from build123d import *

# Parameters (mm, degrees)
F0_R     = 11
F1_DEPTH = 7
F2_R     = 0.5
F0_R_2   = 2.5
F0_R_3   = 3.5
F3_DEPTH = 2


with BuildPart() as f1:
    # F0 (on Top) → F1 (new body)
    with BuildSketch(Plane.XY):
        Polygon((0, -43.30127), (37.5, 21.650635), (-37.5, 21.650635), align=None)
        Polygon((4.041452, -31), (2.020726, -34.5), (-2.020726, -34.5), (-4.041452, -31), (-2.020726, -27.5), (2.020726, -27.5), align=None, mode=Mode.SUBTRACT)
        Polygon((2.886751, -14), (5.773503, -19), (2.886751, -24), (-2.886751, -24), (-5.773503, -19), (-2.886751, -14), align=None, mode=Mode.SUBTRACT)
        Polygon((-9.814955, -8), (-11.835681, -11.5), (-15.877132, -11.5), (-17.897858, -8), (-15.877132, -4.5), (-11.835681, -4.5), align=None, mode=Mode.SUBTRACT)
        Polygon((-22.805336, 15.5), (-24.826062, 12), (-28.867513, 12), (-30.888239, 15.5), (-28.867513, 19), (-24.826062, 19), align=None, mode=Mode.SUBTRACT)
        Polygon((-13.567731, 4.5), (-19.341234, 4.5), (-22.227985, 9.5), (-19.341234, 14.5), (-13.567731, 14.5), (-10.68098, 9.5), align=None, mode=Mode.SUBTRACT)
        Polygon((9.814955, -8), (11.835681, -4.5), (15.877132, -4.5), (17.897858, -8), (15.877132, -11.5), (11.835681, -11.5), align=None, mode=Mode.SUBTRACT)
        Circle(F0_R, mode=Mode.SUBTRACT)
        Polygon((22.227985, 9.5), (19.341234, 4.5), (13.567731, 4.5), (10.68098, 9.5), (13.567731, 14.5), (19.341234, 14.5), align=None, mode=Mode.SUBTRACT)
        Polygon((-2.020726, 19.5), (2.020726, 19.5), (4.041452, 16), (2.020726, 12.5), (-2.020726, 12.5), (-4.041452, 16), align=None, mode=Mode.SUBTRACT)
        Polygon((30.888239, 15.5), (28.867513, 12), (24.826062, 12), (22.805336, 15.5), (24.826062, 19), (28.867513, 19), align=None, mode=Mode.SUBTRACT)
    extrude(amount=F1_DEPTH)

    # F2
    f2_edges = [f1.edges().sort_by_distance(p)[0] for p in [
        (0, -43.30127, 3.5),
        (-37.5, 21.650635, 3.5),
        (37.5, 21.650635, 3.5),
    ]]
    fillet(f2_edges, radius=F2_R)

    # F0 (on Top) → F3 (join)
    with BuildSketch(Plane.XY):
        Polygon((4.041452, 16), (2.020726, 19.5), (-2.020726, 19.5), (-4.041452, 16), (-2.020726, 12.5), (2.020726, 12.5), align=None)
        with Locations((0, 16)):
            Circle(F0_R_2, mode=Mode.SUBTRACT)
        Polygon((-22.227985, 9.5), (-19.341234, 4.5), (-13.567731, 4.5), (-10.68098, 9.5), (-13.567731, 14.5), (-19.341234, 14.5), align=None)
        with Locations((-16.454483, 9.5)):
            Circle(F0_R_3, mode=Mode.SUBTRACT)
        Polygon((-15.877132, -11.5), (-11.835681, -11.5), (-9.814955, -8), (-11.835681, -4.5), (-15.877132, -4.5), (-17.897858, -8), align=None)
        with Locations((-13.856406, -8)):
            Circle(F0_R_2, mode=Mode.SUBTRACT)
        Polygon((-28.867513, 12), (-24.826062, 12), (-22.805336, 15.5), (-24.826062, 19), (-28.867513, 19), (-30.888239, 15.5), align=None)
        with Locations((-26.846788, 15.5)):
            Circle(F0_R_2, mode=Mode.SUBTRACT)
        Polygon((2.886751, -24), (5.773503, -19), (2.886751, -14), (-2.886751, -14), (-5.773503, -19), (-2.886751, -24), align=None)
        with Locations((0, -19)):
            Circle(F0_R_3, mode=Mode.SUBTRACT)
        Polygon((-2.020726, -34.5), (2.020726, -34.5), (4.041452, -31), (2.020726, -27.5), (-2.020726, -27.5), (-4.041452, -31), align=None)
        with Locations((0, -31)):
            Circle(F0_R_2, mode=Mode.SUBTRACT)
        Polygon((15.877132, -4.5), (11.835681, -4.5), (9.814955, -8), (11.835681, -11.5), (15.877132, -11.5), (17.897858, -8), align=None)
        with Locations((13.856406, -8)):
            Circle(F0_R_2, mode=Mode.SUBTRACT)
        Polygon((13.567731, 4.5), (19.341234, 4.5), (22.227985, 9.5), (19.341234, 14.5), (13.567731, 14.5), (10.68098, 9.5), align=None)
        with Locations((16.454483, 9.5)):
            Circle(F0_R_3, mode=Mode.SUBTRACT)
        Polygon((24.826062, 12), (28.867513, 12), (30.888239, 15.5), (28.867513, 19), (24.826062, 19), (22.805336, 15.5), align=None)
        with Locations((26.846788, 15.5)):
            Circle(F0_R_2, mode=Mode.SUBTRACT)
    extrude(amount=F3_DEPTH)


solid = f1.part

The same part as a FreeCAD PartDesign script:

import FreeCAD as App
import Part
import Sketcher
Q = App.Units.Quantity


def edges_at(feature, points):
    """Names of the edges that pass closest to the given points."""
    edges = feature.Shape.Edges
    near = lambda p: min(range(len(edges)), key=lambda i: edges[i].distToShape(Part.Vertex(*p))[0])
    return sorted({f"Edge{near(p) + 1}" for p in points})


def add_polygon(sketch, points):
    """Adds a closed chain of lines whose ends are joined by coincident constraints."""
    first, n = sketch.GeometryCount, len(points)
    for a, b in zip(points, points[1:] + points[:1]):
        sketch.addGeometry(Part.LineSegment(App.Vector(*a, 0), App.Vector(*b, 0)), False)
    for i in range(n):
        sketch.addConstraint(Sketcher.Constraint("Coincident", first + i, 2, first + (i + 1) % n, 1))

doc = App.newDocument("Part")
body = doc.addObject("PartDesign::Body", "Body")

# Sketch on XY plane
sketch1 = body.newObject("Sketcher::SketchObject", "Sketch")
sketch1.AttachmentSupport = (doc.getObject("XY_Plane"), [""])
sketch1.MapMode = "FlatFace"
add_polygon(sketch1, [(0, -43.30127), (37.5, 21.650635), (-37.5, 21.650635)])  # lines 0-2
add_polygon(sketch1, [(-11.835681, -4.5), (-9.814955, -8), (-11.835681, -11.5), (-15.877132, -11.5), (-17.897858, -8), (-15.877132, -4.5)])  # lines 3-8
add_polygon(sketch1, [(2.020726, -27.5), (4.041452, -31), (2.020726, -34.5), (-2.020726, -34.5), (-4.041452, -31), (-2.020726, -27.5)])  # lines 9-14
add_polygon(sketch1, [(-2.886751, -14), (2.886751, -14), (5.773503, -19), (2.886751, -24), (-2.886751, -24), (-5.773503, -19)])  # lines 15-20
add_polygon(sketch1, [(11.835681, -11.5), (9.814955, -8), (11.835681, -4.5), (15.877132, -4.5), (17.897858, -8), (15.877132, -11.5)])  # lines 21-26
add_polygon(sketch1, [(-10.68098, 9.5), (-13.567731, 4.5), (-19.341234, 4.5), (-22.227985, 9.5), (-19.341234, 14.5), (-13.567731, 14.5)])  # lines 27-32
add_polygon(sketch1, [(-24.826062, 19), (-22.805336, 15.5), (-24.826062, 12), (-28.867513, 12), (-30.888239, 15.5), (-28.867513, 19)])  # lines 33-38
sketch1.addGeometry(Part.Circle(App.Vector(0, 0, 0), App.Vector(0, 0, 1), 11), False)  # 39
add_polygon(sketch1, [(-4.041452, 16), (-2.020726, 19.5), (2.020726, 19.5), (4.041452, 16), (2.020726, 12.5), (-2.020726, 12.5)])  # lines 40-45
add_polygon(sketch1, [(19.341234, 14.5), (22.227985, 9.5), (19.341234, 4.5), (13.567731, 4.5), (10.68098, 9.5), (13.567731, 14.5)])  # lines 46-51
add_polygon(sketch1, [(28.867513, 19), (30.888239, 15.5), (28.867513, 12), (24.826062, 12), (22.805336, 15.5), (24.826062, 19)])  # lines 52-57
sketch1.addConstraint([
    Sketcher.Constraint("Horizontal", 1),
    Sketcher.Constraint("Horizontal", 5),
    Sketcher.Constraint("Horizontal", 8),
    Sketcher.Constraint("Horizontal", 11),
    Sketcher.Constraint("Horizontal", 14),
    Sketcher.Constraint("Horizontal", 15),
    Sketcher.Constraint("Horizontal", 18),
    Sketcher.Constraint("Horizontal", 23),
    Sketcher.Constraint("Horizontal", 26),
    Sketcher.Constraint("Horizontal", 28),
    Sketcher.Constraint("Horizontal", 31),
    Sketcher.Constraint("Horizontal", 35),
    Sketcher.Constraint("Horizontal", 38),
    Sketcher.Constraint("Horizontal", 41),
    Sketcher.Constraint("Horizontal", 44),
    Sketcher.Constraint("Horizontal", 48),
    Sketcher.Constraint("Horizontal", 51),
    Sketcher.Constraint("Horizontal", 54),
    Sketcher.Constraint("Horizontal", 57),
    Sketcher.Constraint("Coincident", 39, 3, -1, 1),
    Sketcher.Constraint("Symmetric", 9, 2, 12, 2, -2),
    Sketcher.Constraint("Symmetric", 16, 2, 19, 2, -2),
    Sketcher.Constraint("Symmetric", 3, 2, 21, 2, -2),
    Sketcher.Constraint("Symmetric", 8, 2, 22, 2, -2),
    Sketcher.Constraint("Symmetric", 6, 2, 24, 2, -2),
    Sketcher.Constraint("Symmetric", 5, 2, 25, 2, -2),
    Sketcher.Constraint("Symmetric", 42, 2, 45, 2, -2),
    Sketcher.Constraint("Symmetric", 29, 2, 46, 2, -2),
    Sketcher.Constraint("Symmetric", 28, 2, 47, 2, -2),
    Sketcher.Constraint("Symmetric", 32, 2, 49, 2, -2),
    Sketcher.Constraint("Symmetric", 31, 2, 50, 2, -2),
    Sketcher.Constraint("Symmetric", 36, 2, 52, 2, -2),
    Sketcher.Constraint("Symmetric", 35, 2, 53, 2, -2),
    Sketcher.Constraint("Symmetric", 33, 2, 55, 2, -2),
    Sketcher.Constraint("Symmetric", 38, 2, 56, 2, -2),
    Sketcher.Constraint("PointOnObject", 2, 2, -2),
    Sketcher.Constraint("Parallel", 2, 3),
    Sketcher.Constraint("Parallel", 0, 4),
    Sketcher.Constraint("Parallel", 3, 6),
    Sketcher.Constraint("Parallel", 4, 7),
    Sketcher.Constraint("Parallel", 6, 9),
    Sketcher.Constraint("Parallel", 7, 10),
    Sketcher.Constraint("Parallel", 9, 12),
    Sketcher.Constraint("Parallel", 10, 13),
    Sketcher.Constraint("Parallel", 12, 16),
    Sketcher.Constraint("Parallel", 13, 17),
    Sketcher.Constraint("Parallel", 16, 19),
    Sketcher.Constraint("Parallel", 17, 20),
    Sketcher.Constraint("Parallel", 19, 21),
    Sketcher.Constraint("Parallel", 20, 22),
    Sketcher.Constraint("Parallel", 21, 24),
    Sketcher.Constraint("Parallel", 25, 27),
    Sketcher.Constraint("Parallel", 24, 29),
    Sketcher.Constraint("Parallel", 27, 30),
    Sketcher.Constraint("Parallel", 29, 32),
    Sketcher.Constraint("Parallel", 32, 33),
    Sketcher.Constraint("Parallel", 30, 34),
    Sketcher.Constraint("Parallel", 33, 36),
    Sketcher.Constraint("Parallel", 34, 37),
    Sketcher.Constraint("Parallel", 37, 40),
    Sketcher.Constraint("Parallel", 36, 42),
    Sketcher.Constraint("Parallel", 40, 43),
    Sketcher.Constraint("Parallel", 42, 45),
    Sketcher.Constraint("Parallel", 45, 46),
    Sketcher.Constraint("Parallel", 46, 49),
    Sketcher.Constraint("Parallel", 49, 52),
    Sketcher.Constraint("Parallel", 52, 55),
    Sketcher.Constraint("Horizontal", 3, 2, 6, 2),
    Sketcher.Constraint("Horizontal", 29, 2, 32, 2),
    Sketcher.Constraint("Horizontal", 33, 2, 36, 2),
    Sketcher.Constraint("Vertical", 5, 2, 7, 2),
    Sketcher.Constraint("Vertical", 11, 2, 13, 2),
    Sketcher.Constraint("Vertical", 15, 2, 17, 2),
    Sketcher.Constraint("Vertical", 28, 2, 30, 2),
    Sketcher.Constraint("Vertical", 35, 2, 37, 2),
    Sketcher.Constraint("Vertical", 13, 2, 40, 2),
    Sketcher.Constraint("Vertical", 9, 2, 42, 2),
    Sketcher.Constraint("Vertical", 41, 2, 43, 2),
    Sketcher.Constraint("Equal", 8, 11),
    Sketcher.Constraint("Equal", 18, 28),
    Sketcher.Constraint("Equal", 26, 35),
    Sketcher.Constraint("Equal", 7, 9),
    Sketcher.Constraint("Equal", 20, 27),
    Sketcher.Constraint("Equal", 25, 33),
    Sketcher.Constraint("Diameter", 39, Q("22 mm")),
    Sketcher.Constraint("DistanceX", 1, 2, 1, 1, Q("75 mm")),
    Sketcher.Constraint("Angle", 0, Q("60 deg")),
    Sketcher.Constraint("DistanceY", 3, 2, -1, 1, Q("8 mm")),
    Sketcher.Constraint("DistanceY", 9, 2, -1, 1, Q("31 mm")),
    Sketcher.Constraint("DistanceY", 15, 2, -1, 1, Q("14 mm")),
    Sketcher.Constraint("DistanceY", 16, 2, -1, 1, Q("19 mm")),
    Sketcher.Constraint("DistanceY", -1, 1, 34, 2, Q("12 mm")),
    Sketcher.Constraint("DistanceY", -1, 1, 37, 2, Q("19 mm")),
    Sketcher.Constraint("DistanceY", -1, 1, 42, 2, Q("16 mm")),
    Sketcher.Constraint("DistanceY", 8, 2, 27, 2, Q("9 mm")),
    Sketcher.Constraint("DistanceX", 15, 1, 15, 2, Q("5.773502 mm")),
    Sketcher.Constraint("DistanceX", 5, 2, 5, 1, Q("4.041451 mm")),
    Sketcher.Constraint("DistanceX", 7, 2, 27, 2, Q("2.309401 mm")),
    Sketcher.Constraint("DistanceY", 2, 2, -1, 1, Q("43.30127 mm")),
    Sketcher.Constraint("DistanceX", 4, 2, -1, 1, Q("11.835681 mm")),
    Sketcher.Constraint("DistanceX", 36, 2, -1, 1, Q("30.888239 mm")),
])
pad1 = body.newObject("PartDesign::Pad", "Pad")
pad1.Profile = sketch1
pad1.Length = 7
doc.recompute()

fillet = body.newObject("PartDesign::Fillet", "Fillet")
fillet.Base = (pad1, edges_at(pad1, [(0, -43.301, 3.5), (-37.5, 21.651, 3.5), (37.5, 21.651, 3.5)]))
fillet.Radius = 0.5

# Sketch on XY plane
sketch2 = body.newObject("Sketcher::SketchObject", "Sketch001")
sketch2.AttachmentSupport = (doc.getObject("XY_Plane"), [""])
sketch2.MapMode = "FlatFace"
add_polygon(sketch2, [(4.041452, 16), (2.020726, 19.5), (-2.020726, 19.5), (-4.041452, 16), (-2.020726, 12.5), (2.020726, 12.5)])  # lines 0-5
sketch2.addGeometry(Part.Circle(App.Vector(0, 16, 0), App.Vector(0, 0, 1), 2.5), False)  # 6
add_polygon(sketch2, [(-22.227985, 9.5), (-19.341234, 4.5), (-13.567731, 4.5), (-10.68098, 9.5), (-13.567731, 14.5), (-19.341234, 14.5)])  # lines 7-12
sketch2.addGeometry(Part.Circle(App.Vector(-16.454483, 9.5, 0), App.Vector(0, 0, 1), 3.5), False)  # 13
add_polygon(sketch2, [(-15.877132, -11.5), (-11.835681, -11.5), (-9.814955, -8), (-11.835681, -4.5), (-15.877132, -4.5), (-17.897858, -8)])  # lines 14-19
sketch2.addGeometry(Part.Circle(App.Vector(-13.856406, -8, 0), App.Vector(0, 0, 1), 2.5), False)  # 20
add_polygon(sketch2, [(-28.867513, 12), (-24.826062, 12), (-22.805336, 15.5), (-24.826062, 19), (-28.867513, 19), (-30.888239, 15.5)])  # lines 21-26
sketch2.addGeometry(Part.Circle(App.Vector(-26.846788, 15.5, 0), App.Vector(0, 0, 1), 2.5), False)  # 27
add_polygon(sketch2, [(2.886751, -24), (5.773503, -19), (2.886751, -14), (-2.886751, -14), (-5.773503, -19), (-2.886751, -24)])  # lines 28-33
sketch2.addGeometry(Part.Circle(App.Vector(0, -19, 0), App.Vector(0, 0, 1), 3.5), False)  # 34
add_polygon(sketch2, [(-2.020726, -34.5), (2.020726, -34.5), (4.041452, -31), (2.020726, -27.5), (-2.020726, -27.5), (-4.041452, -31)])  # lines 35-40
sketch2.addGeometry(Part.Circle(App.Vector(0, -31, 0), App.Vector(0, 0, 1), 2.5), False)  # 41
add_polygon(sketch2, [(15.877132, -4.5), (11.835681, -4.5), (9.814955, -8), (11.835681, -11.5), (15.877132, -11.5), (17.897858, -8)])  # lines 42-47
sketch2.addGeometry(Part.Circle(App.Vector(13.856406, -8, 0), App.Vector(0, 0, 1), 2.5), False)  # 48
add_polygon(sketch2, [(13.567731, 4.5), (19.341234, 4.5), (22.227985, 9.5), (19.341234, 14.5), (13.567731, 14.5), (10.68098, 9.5)])  # lines 49-54
sketch2.addGeometry(Part.Circle(App.Vector(16.454483, 9.5, 0), App.Vector(0, 0, 1), 3.5), False)  # 55
add_polygon(sketch2, [(24.826062, 12), (28.867513, 12), (30.888239, 15.5), (28.867513, 19), (24.826062, 19), (22.805336, 15.5)])  # lines 56-61
sketch2.addGeometry(Part.Circle(App.Vector(26.846788, 15.5, 0), App.Vector(0, 0, 1), 2.5), False)  # 62
sketch2.addConstraint([
    Sketcher.Constraint("Horizontal", 1),
    Sketcher.Constraint("Horizontal", 4),
    Sketcher.Constraint("Horizontal", 8),
    Sketcher.Constraint("Horizontal", 11),
    Sketcher.Constraint("Horizontal", 14),
    Sketcher.Constraint("Horizontal", 17),
    Sketcher.Constraint("Horizontal", 21),
    Sketcher.Constraint("Horizontal", 24),
    Sketcher.Constraint("Horizontal", 30),
    Sketcher.Constraint("Horizontal", 33),
    Sketcher.Constraint("Horizontal", 35),
    Sketcher.Constraint("Horizontal", 38),
    Sketcher.Constraint("Horizontal", 42),
    Sketcher.Constraint("Horizontal", 45),
    Sketcher.Constraint("Horizontal", 49),
    Sketcher.Constraint("Horizontal", 52),
    Sketcher.Constraint("Horizontal", 56),
    Sketcher.Constraint("Horizontal", 59),
    Sketcher.Constraint("Equal", 6, 20),
    Sketcher.Constraint("Equal", 20, 27),
    Sketcher.Constraint("Equal", 13, 34),
    Sketcher.Constraint("Equal", 27, 41),
    Sketcher.Constraint("Equal", 41, 48),
    Sketcher.Constraint("Equal", 34, 55),
    Sketcher.Constraint("Equal", 48, 62),
    Sketcher.Constraint("Symmetric", 20, 3, 48, 3, -2),
    Sketcher.Constraint("Symmetric", 13, 3, 55, 3, -2),
    Sketcher.Constraint("Symmetric", 27, 3, 62, 3, -2),
    Sketcher.Constraint("Symmetric", 2, 2, 5, 2, -2),
    Sketcher.Constraint("Symmetric", 28, 2, 31, 2, -2),
    Sketcher.Constraint("Symmetric", 36, 2, 39, 2, -2),
    Sketcher.Constraint("Symmetric", 16, 2, 42, 2, -2),
    Sketcher.Constraint("Symmetric", 15, 2, 43, 2, -2),
    Sketcher.Constraint("Symmetric", 14, 2, 44, 2, -2),
    Sketcher.Constraint("Symmetric", 18, 2, 46, 2, -2),
    Sketcher.Constraint("Symmetric", 7, 2, 49, 2, -2),
    Sketcher.Constraint("Symmetric", 12, 2, 50, 2, -2),
    Sketcher.Constraint("Symmetric", 11, 2, 51, 2, -2),
    Sketcher.Constraint("Symmetric", 9, 2, 53, 2, -2),
    Sketcher.Constraint("Symmetric", 26, 2, 56, 2, -2),
    Sketcher.Constraint("Symmetric", 25, 2, 57, 2, -2),
    Sketcher.Constraint("Symmetric", 24, 2, 58, 2, -2),
    Sketcher.Constraint("Symmetric", 22, 2, 60, 2, -2),
    Sketcher.Constraint("PointOnObject", 6, 3, -2),
    Sketcher.Constraint("PointOnObject", 34, 3, -2),
    Sketcher.Constraint("PointOnObject", 41, 3, -2),
    Sketcher.Constraint("Parallel", 0, 3),
    Sketcher.Constraint("Parallel", 2, 5),
    Sketcher.Constraint("Parallel", 3, 7),
    Sketcher.Constraint("Parallel", 5, 9),
    Sketcher.Constraint("Parallel", 7, 10),
    Sketcher.Constraint("Parallel", 9, 12),
    Sketcher.Constraint("Parallel", 12, 15),
    Sketcher.Constraint("Parallel", 10, 16),
    Sketcher.Constraint("Parallel", 15, 18),
    Sketcher.Constraint("Parallel", 16, 19),
    Sketcher.Constraint("Parallel", 18, 22),
    Sketcher.Constraint("Parallel", 19, 23),
    Sketcher.Constraint("Parallel", 22, 25),
    Sketcher.Constraint("Parallel", 23, 26),
    Sketcher.Constraint("Parallel", 25, 28),
    Sketcher.Constraint("Parallel", 26, 29),
    Sketcher.Constraint("Parallel", 28, 31),
    Sketcher.Constraint("Parallel", 29, 32),
    Sketcher.Constraint("Parallel", 31, 36),
    Sketcher.Constraint("Parallel", 32, 37),
    Sketcher.Constraint("Parallel", 36, 39),
    Sketcher.Constraint("Parallel", 37, 40),
    Sketcher.Constraint("Parallel", 39, 43),
    Sketcher.Constraint("Parallel", 43, 46),
    Sketcher.Constraint("Parallel", 44, 47),
    Sketcher.Constraint("Parallel", 50, 53),
    Sketcher.Constraint("Parallel", 51, 54),
    Sketcher.Constraint("Parallel", 57, 60),
    Sketcher.Constraint("Parallel", 58, 61),
    Sketcher.Constraint("Horizontal", 6, 3, 2, 2),
    Sketcher.Constraint("Horizontal", 55, 3, 9, 2),
    Sketcher.Constraint("Horizontal", 9, 2, 12, 2),
    Sketcher.Constraint("Horizontal", 48, 3, 15, 2),
    Sketcher.Constraint("Horizontal", 15, 2, 18, 2),
    Sketcher.Constraint("Horizontal", 62, 3, 22, 2),
    Sketcher.Constraint("Horizontal", 22, 2, 25, 2),
    Sketcher.Constraint("Horizontal", 34, 3, 28, 2),
    Sketcher.Constraint("Horizontal", 41, 3, 36, 2),
    Sketcher.Constraint("Vertical", 1, 2, 3, 2),
    Sketcher.Constraint("Vertical", 8, 2, 10, 2),
    Sketcher.Constraint("Vertical", 14, 2, 16, 2),
    Sketcher.Constraint("Vertical", 21, 2, 23, 2),
    Sketcher.Constraint("Vertical", 30, 2, 32, 2),
    Sketcher.Constraint("Vertical", 4, 2, 35, 2),
    Sketcher.Constraint("Vertical", 5, 2, 36, 2),
    Sketcher.Constraint("Vertical", 35, 2, 37, 2),
    Sketcher.Constraint("Equal", 4, 14),
    Sketcher.Constraint("Equal", 17, 21),
    Sketcher.Constraint("Equal", 11, 30),
    Sketcher.Constraint("Equal", 5, 15),
    Sketcher.Constraint("Equal", 19, 22),
    Sketcher.Constraint("Equal", 12, 28),
    Sketcher.Constraint("Diameter", 6, Q("5 mm")),
    Sketcher.Constraint("Diameter", 13, Q("7 mm")),
    Sketcher.Constraint("Angle", 0, Q("120.000001 deg")),
    Sketcher.Constraint("DistanceY", -1, 1, 6, 3, Q("16 mm")),
    Sketcher.Constraint("DistanceY", 20, 3, -1, 1, Q("8 mm")),
    Sketcher.Constraint("DistanceY", 34, 3, -1, 1, Q("19 mm")),
    Sketcher.Constraint("DistanceY", 41, 3, -1, 1, Q("31 mm")),
    Sketcher.Constraint("DistanceY", -1, 1, 21, 2, Q("12 mm")),
    Sketcher.Constraint("DistanceY", -1, 1, 23, 2, Q("19 mm")),
    Sketcher.Constraint("DistanceY", 29, 2, -1, 1, Q("14 mm")),
    Sketcher.Constraint("DistanceY", -1, 1, 13, 3, Q("9.5 mm")),
    Sketcher.Constraint("DistanceX", 30, 2, 30, 1, Q("5.773502 mm")),
    Sketcher.Constraint("DistanceX", 1, 2, 1, 1, Q("4.041452 mm")),
    Sketcher.Constraint("DistanceX", 27, 3, -1, 1, Q("26.846788 mm")),
    Sketcher.Constraint("DistanceX", 8, 2, -1, 1, Q("13.567731 mm")),
    Sketcher.Constraint("DistanceX", 14, 2, -1, 1, Q("11.835681 mm")),
    Sketcher.Constraint("DistanceX", 25, 2, -1, 1, Q("30.888239 mm")),
    Sketcher.Constraint("DistanceX", 13, 3, -1, 1, Q("16.454483 mm")),
    Sketcher.Constraint("DistanceX", 20, 3, -1, 1, Q("13.856406 mm")),
])
pad2 = body.newObject("PartDesign::Pad", "Pad001")
pad2.Profile = sketch2
pad2.Length = 2

doc.recompute()
